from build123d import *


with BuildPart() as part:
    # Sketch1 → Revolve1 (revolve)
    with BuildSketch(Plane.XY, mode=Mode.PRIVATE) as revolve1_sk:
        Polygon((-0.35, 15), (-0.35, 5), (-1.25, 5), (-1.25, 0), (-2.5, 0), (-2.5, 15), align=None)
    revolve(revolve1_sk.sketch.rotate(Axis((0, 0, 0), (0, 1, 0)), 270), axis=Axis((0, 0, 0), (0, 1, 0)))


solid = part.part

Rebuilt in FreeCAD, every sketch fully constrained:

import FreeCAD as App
import Part
import Sketcher
from FreeCAD import Vector
Q = App.Units.Quantity

doc = App.newDocument("Part")
body = doc.addObject("PartDesign::Body", "Body")

# Sketch on XY plane
sketch1 = doc.addObject("Sketcher::SketchObject", "Sketch")
body.addObject(sketch1)
sketch1.AttachmentSupport = (doc.XY_Plane, [""])
sketch1.MapMode = "FlatFace"
sketch1.addGeometry([
    Part.LineSegment(Vector(-0.3, 5, 0), Vector(-0.3, 15, 0)),  # 0
    Part.LineSegment(Vector(-0.3, 15, 0), Vector(-2.5, 15, 0)),  # 1
    Part.LineSegment(Vector(-2.5, 15, 0), Vector(-2.5, 0, 0)),  # 2
    Part.LineSegment(Vector(-2.5, 0, 0), Vector(-1.2, 0, 0)),  # 3
    Part.LineSegment(Vector(-1.2, 0, 0), Vector(-1.2, 5, 0)),  # 4
    Part.LineSegment(Vector(-1.2, 5, 0), Vector(-0.3, 5, 0)),  # 5
], False)
sketch1.addConstraint([
    Sketcher.Constraint("Coincident", 0, 2, 1, 1),
    Sketcher.Constraint("Coincident", 1, 2, 2, 1),
    Sketcher.Constraint("Coincident", 2, 2, 3, 1),
    Sketcher.Constraint("Coincident", 3, 2, 4, 1),
    Sketcher.Constraint("Coincident", 4, 2, 5, 1),
    Sketcher.Constraint("Coincident", 5, 2, 0, 1),
    Sketcher.Constraint("Vertical", 0),
    Sketcher.Constraint("Horizontal", 1),
    Sketcher.Constraint("Vertical", 2),
    Sketcher.Constraint("Horizontal", 3),
    Sketcher.Constraint("Vertical", 4),
    Sketcher.Constraint("Horizontal", 5),
    Sketcher.Constraint("PointOnObject", 2, 2, -1),
    Sketcher.Constraint("DistanceY", 0, 1, 0, 2, Q("10 mm")),
    Sketcher.Constraint("DistanceY", 2, 2, 2, 1, Q("15 mm")),
    Sketcher.Constraint("DistanceX", 5, 1, 5, 2, Q("0.9 mm")),
    Sketcher.Constraint("DistanceX", 1, 2, 1, 1, Q("2.15 mm")),
    Sketcher.Constraint("DistanceX", 1, 2, -1, 1, Q("2.5 mm")),
])
revolution = doc.addObject("PartDesign::Revolution", "Revolution")
body.addObject(revolution)
revolution.Profile = sketch1
revolution.ReferenceAxis = (sketch1, ["V_Axis"])
revolution.Angle = 360

doc.recompute()
